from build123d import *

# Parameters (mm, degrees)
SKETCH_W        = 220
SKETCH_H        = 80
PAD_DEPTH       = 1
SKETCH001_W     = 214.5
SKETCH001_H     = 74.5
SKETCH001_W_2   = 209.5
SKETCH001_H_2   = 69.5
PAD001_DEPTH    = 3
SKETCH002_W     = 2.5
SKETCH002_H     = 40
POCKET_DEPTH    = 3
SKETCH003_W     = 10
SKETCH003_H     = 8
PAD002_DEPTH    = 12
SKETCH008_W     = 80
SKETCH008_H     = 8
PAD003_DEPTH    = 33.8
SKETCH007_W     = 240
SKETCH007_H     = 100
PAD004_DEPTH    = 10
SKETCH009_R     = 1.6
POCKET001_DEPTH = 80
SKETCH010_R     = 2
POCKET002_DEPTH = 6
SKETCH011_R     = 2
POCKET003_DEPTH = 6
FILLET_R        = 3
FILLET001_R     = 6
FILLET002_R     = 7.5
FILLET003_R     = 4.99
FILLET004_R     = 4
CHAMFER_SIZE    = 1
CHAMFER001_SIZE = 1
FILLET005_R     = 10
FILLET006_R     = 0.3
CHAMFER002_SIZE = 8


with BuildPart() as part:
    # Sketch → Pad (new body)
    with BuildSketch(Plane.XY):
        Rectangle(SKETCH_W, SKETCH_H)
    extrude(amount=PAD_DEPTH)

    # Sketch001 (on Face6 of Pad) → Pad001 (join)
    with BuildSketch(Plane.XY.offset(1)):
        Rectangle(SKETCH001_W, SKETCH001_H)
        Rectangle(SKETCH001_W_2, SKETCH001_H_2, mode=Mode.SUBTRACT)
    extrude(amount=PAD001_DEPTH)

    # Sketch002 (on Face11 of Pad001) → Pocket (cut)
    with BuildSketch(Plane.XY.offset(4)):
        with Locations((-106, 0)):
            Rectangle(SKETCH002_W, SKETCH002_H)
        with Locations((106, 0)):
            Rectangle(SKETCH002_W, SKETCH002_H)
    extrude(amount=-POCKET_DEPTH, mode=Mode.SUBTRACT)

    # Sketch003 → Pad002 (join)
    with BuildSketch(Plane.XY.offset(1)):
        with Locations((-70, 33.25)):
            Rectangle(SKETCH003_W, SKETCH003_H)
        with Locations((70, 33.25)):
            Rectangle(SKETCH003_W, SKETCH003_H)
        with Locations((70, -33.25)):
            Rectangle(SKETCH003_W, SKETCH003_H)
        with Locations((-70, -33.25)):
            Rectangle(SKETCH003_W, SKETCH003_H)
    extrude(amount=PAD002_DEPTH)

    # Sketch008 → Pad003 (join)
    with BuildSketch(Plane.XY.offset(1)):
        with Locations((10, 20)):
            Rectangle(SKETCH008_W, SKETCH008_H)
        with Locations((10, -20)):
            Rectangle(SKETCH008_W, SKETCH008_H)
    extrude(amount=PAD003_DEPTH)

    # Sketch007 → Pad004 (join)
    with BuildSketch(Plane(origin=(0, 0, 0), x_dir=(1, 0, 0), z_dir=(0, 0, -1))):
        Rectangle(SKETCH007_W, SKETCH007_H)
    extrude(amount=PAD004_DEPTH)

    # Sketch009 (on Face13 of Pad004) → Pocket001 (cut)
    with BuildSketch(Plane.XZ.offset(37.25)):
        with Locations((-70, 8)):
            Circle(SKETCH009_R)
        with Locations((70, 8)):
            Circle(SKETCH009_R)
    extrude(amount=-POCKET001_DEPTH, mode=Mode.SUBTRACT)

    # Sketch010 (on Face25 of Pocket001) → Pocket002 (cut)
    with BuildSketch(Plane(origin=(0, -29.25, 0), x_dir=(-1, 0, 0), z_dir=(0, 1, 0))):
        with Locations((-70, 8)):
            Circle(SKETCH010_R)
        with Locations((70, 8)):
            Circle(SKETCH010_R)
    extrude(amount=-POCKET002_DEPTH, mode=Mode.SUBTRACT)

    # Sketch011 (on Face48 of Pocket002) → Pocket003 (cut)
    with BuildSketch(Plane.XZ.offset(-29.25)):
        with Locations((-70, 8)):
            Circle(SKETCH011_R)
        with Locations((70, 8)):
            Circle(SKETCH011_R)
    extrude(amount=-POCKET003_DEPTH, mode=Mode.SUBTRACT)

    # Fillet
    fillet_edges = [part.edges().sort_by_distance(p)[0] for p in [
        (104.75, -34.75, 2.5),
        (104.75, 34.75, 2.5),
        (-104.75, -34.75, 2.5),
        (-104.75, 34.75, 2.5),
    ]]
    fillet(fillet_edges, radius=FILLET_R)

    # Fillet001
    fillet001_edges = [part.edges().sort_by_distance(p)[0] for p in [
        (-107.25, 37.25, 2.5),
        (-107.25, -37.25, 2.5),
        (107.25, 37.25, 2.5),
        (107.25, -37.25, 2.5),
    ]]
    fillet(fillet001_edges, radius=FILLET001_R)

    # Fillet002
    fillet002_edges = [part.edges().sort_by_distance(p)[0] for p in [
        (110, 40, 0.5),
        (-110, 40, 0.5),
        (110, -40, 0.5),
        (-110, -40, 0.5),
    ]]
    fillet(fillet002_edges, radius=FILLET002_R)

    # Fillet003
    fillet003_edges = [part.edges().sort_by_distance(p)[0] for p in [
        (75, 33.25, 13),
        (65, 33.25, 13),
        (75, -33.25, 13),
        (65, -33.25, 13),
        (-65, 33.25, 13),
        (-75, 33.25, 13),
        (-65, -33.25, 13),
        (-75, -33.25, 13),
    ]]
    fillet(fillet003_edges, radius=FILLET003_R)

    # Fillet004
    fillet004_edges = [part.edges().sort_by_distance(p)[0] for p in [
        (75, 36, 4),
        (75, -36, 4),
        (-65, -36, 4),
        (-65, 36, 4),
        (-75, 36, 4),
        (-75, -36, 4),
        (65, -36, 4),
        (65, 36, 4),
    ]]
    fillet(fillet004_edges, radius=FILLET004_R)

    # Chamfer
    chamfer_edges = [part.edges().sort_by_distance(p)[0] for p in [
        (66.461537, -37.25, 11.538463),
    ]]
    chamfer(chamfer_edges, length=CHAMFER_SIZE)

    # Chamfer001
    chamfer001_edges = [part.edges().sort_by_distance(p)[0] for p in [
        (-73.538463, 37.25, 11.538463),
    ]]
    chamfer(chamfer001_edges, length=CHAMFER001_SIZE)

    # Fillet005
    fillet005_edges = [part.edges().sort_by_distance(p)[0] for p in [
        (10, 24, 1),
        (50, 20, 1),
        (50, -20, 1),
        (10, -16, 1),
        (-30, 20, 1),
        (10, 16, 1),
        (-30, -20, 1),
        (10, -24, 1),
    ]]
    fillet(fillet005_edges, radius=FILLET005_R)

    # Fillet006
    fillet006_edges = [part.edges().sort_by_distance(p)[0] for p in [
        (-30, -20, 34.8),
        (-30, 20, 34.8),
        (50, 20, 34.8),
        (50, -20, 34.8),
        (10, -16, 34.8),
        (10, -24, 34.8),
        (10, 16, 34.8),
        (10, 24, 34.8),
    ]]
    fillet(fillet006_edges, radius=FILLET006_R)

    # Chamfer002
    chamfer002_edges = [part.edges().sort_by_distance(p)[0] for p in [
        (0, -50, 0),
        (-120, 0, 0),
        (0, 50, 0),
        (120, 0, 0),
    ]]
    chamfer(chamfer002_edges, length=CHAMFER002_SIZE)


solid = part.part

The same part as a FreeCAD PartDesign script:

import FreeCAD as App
import Part
import Sketcher
from FreeCAD import Vector


def edges_at(feature, points):
    """Names of the edges that pass closest to the given points."""
    edges = feature.Shape.Edges
    near = lambda p: min(range(len(edges)), key=lambda i: edges[i].distToShape(Part.Vertex(*p))[0])
    return sorted({f"Edge{near(p) + 1}" for p in points})


def add_polygon(sketch, points):
    """Adds a closed chain of lines whose ends are joined by coincident constraints."""
    first, n = sketch.GeometryCount, len(points)
    for a, b in zip(points, points[1:] + points[:1]):
        sketch.addGeometry(Part.LineSegment(App.Vector(*a, 0), App.Vector(*b, 0)), False)
    for i in range(n):
        sketch.addConstraint(Sketcher.Constraint("Coincident", first + i, 2, first + (i + 1) % n, 1))

doc = App.newDocument("Part")
body = doc.addObject("PartDesign::Body", "Body")

# Sketch on XY plane
sketch1 = body.newObject("Sketcher::SketchObject", "Sketch")
sketch1.AttachmentSupport = (doc.getObject("XY_Plane"), [""])
sketch1.MapMode = "FlatFace"
add_polygon(sketch1, [(-110, 40), (-110, -40), (110, -40), (110, 40)])  # lines 0-3
sketch1.addConstraint([
    Sketcher.Constraint("Vertical", 0),
    Sketcher.Constraint("Horizontal", 1),
    Sketcher.Constraint("Vertical", 2),
    Sketcher.Constraint("Horizontal", 3),
    Sketcher.Constraint("Symmetric", 0, 2, 2, 2, -1, 1),
    Sketcher.Constraint("DistanceX", 1, 1, 1, 2, 220.0),
    Sketcher.Constraint("DistanceY", 0, 2, 0, 1, 80.0),
])
pad1 = body.newObject("PartDesign::Pad", "Pad")
pad1.Profile = sketch1
pad1.Length = 1

# Sketch on XY plane
sketch2 = body.newObject("Sketcher::SketchObject", "Sketch001")
sketch2.AttachmentSupport = (doc.getObject("XY_Plane"), [""])
sketch2.MapMode = "FlatFace"
sketch2.AttachmentOffset = App.Placement(Vector(0, 0, 1), App.Rotation())
add_polygon(sketch2, [(-107, 37), (-107, -37), (107, -37), (107, 37)])  # lines 0-3
add_polygon(sketch2, [(105, -35), (-105, -35), (-105, 35), (105, 35)])  # lines 4-7
sketch2.addConstraint([
    Sketcher.Constraint("Vertical", 0),
    Sketcher.Constraint("Horizontal", 1),
    Sketcher.Constraint("Vertical", 2),
    Sketcher.Constraint("Horizontal", 3),
    Sketcher.Constraint("Horizontal", 4),
    Sketcher.Constraint("Vertical", 5),
    Sketcher.Constraint("Horizontal", 6),
    Sketcher.Constraint("Vertical", 7),
    Sketcher.Constraint("Symmetric", 0, 2, 2, 2, -1, 1),
    Sketcher.Constraint("Symmetric", 4, 2, 6, 2, -1, 1),
    Sketcher.Constraint("DistanceX", 1, 1, 1, 2, 214.5),
    Sketcher.Constraint("DistanceX", 4, 2, 4, 1, 209.5),
    Sketcher.Constraint("DistanceY", 0, 2, 0, 1, 74.5),
    Sketcher.Constraint("DistanceY", 5, 1, 5, 2, 69.5),
])
pad2 = body.newObject("PartDesign::Pad", "Pad001")
pad2.Profile = sketch2
pad2.Length = 3

# Sketch on XY plane
sketch3 = body.newObject("Sketcher::SketchObject", "Sketch002")
sketch3.AttachmentSupport = (doc.getObject("XY_Plane"), [""])
sketch3.MapMode = "FlatFace"
sketch3.AttachmentOffset = App.Placement(Vector(0, 0, 4), App.Rotation())
add_polygon(sketch3, [(-107.2, 20), (-107.2, -20), (-104.8, -20), (-104.8, 20)])  # lines 0-3
add_polygon(sketch3, [(104.8, 20), (104.8, -20), (107.2, -20), (107.2, 20)])  # lines 4-7
sketch3.addConstraint([
    Sketcher.Constraint("Vertical", 0),
    Sketcher.Constraint("Horizontal", 1),
    Sketcher.Constraint("Vertical", 2),
    Sketcher.Constraint("Horizontal", 3),
    Sketcher.Constraint("Vertical", 4),
    Sketcher.Constraint("Horizontal", 5),
    Sketcher.Constraint("Vertical", 6),
    Sketcher.Constraint("Horizontal", 7),
    Sketcher.Constraint("Symmetric", 2, 2, 4, 2, -1, 1),
    Sketcher.Constraint("Symmetric", 0, 2, 6, 2, -1, 1),
    Sketcher.Constraint("Horizontal", 1, 2, 4, 2),
    Sketcher.Constraint("DistanceY", 0, 2, 0, 1, 40.0),
    Sketcher.Constraint("DistanceX", 1, 1, 1, 2, 2.5),
    Sketcher.Constraint("DistanceX", 0, 2, 4, 2, 212.0),
])
pocket1 = body.newObject("PartDesign::Pocket", "Pocket")
pocket1.Profile = sketch3
pocket1.Length = 3

# Sketch on XY plane
sketch4 = body.newObject("Sketcher::SketchObject", "Sketch003")
sketch4.AttachmentSupport = (doc.getObject("XY_Plane"), [""])
sketch4.MapMode = "FlatFace"
sketch4.AttachmentOffset = App.Placement(Vector(0, 0, 1), App.Rotation())
add_polygon(sketch4, [(-75, 37), (-75, 29), (-65, 29), (-65, 37)])  # lines 0-3
add_polygon(sketch4, [(65, 37), (65, 29), (75, 29), (75, 37)])  # lines 4-7
add_polygon(sketch4, [(65, -29), (65, -37), (75, -37), (75, -29)])  # lines 8-11
add_polygon(sketch4, [(-75, -29), (-75, -37), (-65, -37), (-65, -29)])  # lines 12-15
sketch4.addConstraint([
    Sketcher.Constraint("Vertical", 0),
    Sketcher.Constraint("Horizontal", 1),
    Sketcher.Constraint("Vertical", 2),
    Sketcher.Constraint("Horizontal", 3),
    Sketcher.Constraint("Vertical", 4),
    Sketcher.Constraint("Horizontal", 5),
    Sketcher.Constraint("Vertical", 6),
    Sketcher.Constraint("Horizontal", 7),
    Sketcher.Constraint("Vertical", 8),
    Sketcher.Constraint("Horizontal", 9),
    Sketcher.Constraint("Vertical", 10),
    Sketcher.Constraint("Horizontal", 11),
    Sketcher.Constraint("Vertical", 12),
    Sketcher.Constraint("Horizontal", 13),
    Sketcher.Constraint("Vertical", 14),
    Sketcher.Constraint("Horizontal", 15),
    Sketcher.Constraint("Symmetric", 2, 2, 8, 2, -1, 1),
    Sketcher.Constraint("Symmetric", 0, 2, 10, 2, -1, 1),
    Sketcher.Constraint("Symmetric", 6, 2, 12, 2, -1, 1),
    Sketcher.Constraint("Symmetric", 4, 2, 14, 2, -1, 1),
    Sketcher.Constraint("Symmetric", 1, 2, 4, 2, -2),
    Sketcher.Constraint("Symmetric", 3, 2, 6, 2, -2),
    Sketcher.Constraint("DistanceX", 1, 1, 1, 2, 10.0),
    Sketcher.Constraint("DistanceY", 0, 2, 0, 1, 8.0),
    Sketcher.Constraint("DistanceX", 0, 2, -1, 1, 75.0),
    Sketcher.Constraint("DistanceY", 8, 2, 4, 2, 66.5),
])
pad3 = body.newObject("PartDesign::Pad", "Pad002")
pad3.Profile = sketch4
pad3.Length = 12

# Sketch on XY plane
sketch5 = body.newObject("Sketcher::SketchObject", "Sketch004")
sketch5.AttachmentSupport = (doc.getObject("XY_Plane"), [""])
sketch5.MapMode = "FlatFace"
sketch5.AttachmentOffset = App.Placement(Vector(0, 0, 1), App.Rotation())
add_polygon(sketch5, [(-30, 24), (-30, 16), (50, 16), (50, 24)])  # lines 0-3
add_polygon(sketch5, [(-30, -16), (-30, -24), (50, -24), (50, -16)])  # lines 4-7
sketch5.addConstraint([
    Sketcher.Constraint("Vertical", 0),
    Sketcher.Constraint("Horizontal", 1),
    Sketcher.Constraint("Vertical", 2),
    Sketcher.Constraint("Horizontal", 3),
    Sketcher.Constraint("Vertical", 4),
    Sketcher.Constraint("Horizontal", 5),
    Sketcher.Constraint("Vertical", 6),
    Sketcher.Constraint("Horizontal", 7),
    Sketcher.Constraint("Symmetric", 3, 2, 4, 2, -1),
    Sketcher.Constraint("Symmetric", 1, 2, 6, 2, -1),
    Sketcher.Constraint("DistanceX", 1, 1, 1, 2, 80.0),
    Sketcher.Constraint("DistanceY", 0, 2, 0, 1, 8.0),
    Sketcher.Constraint("DistanceX", 0, 2, -1, 1, 30.0),
    Sketcher.Constraint("DistanceY", -1, 1, 0, 2, 16.0),
])
pad4 = body.newObject("PartDesign::Pad", "Pad003")
pad4.Profile = sketch5
pad4.Length = 33.8

# Sketch on XY plane
sketch6 = body.newObject("Sketcher::SketchObject", "Sketch005")
sketch6.AttachmentSupport = (doc.getObject("XY_Plane"), [""])
sketch6.MapMode = "FlatFace"
add_polygon(sketch6, [(-120, -50), (-120, 50), (120, 50), (120, -50)])  # lines 0-3
sketch6.addConstraint([
    Sketcher.Constraint("Vertical", 0),
    Sketcher.Constraint("Horizontal", 1),
    Sketcher.Constraint("Vertical", 2),
    Sketcher.Constraint("Horizontal", 3),
    Sketcher.Constraint("Symmetric", 0, 2, 2, 2, -1, 1),
    Sketcher.Constraint("DistanceX", 1, 1, 1, 2, 240.0),
    Sketcher.Constraint("DistanceY", 0, 1, 0, 2, 100.0),
])
pad5 = body.newObject("PartDesign::Pad", "Pad004")
pad5.Profile = sketch6
pad5.Length = 10
pad5.Reversed = True

# Sketch on XZ plane
sketch7 = body.newObject("Sketcher::SketchObject", "Sketch006")
sketch7.AttachmentSupport = (doc.getObject("XZ_Plane"), [""])
sketch7.MapMode = "FlatFace"
sketch7.AttachmentOffset = App.Placement(Vector(0, 0, 37.25), App.Rotation())
sketch7.addGeometry([
    Part.Circle(Vector(-70, 8, 0), Vector(0, 0, 1), 1.6),
    Part.Circle(Vector(70, 8, 0), Vector(0, 0, 1), 1.6),
], False)
sketch7.addConstraint([
    Sketcher.Constraint("Equal", 0, 1),
    Sketcher.Constraint("Symmetric", 0, 3, 1, 3, -2),
    Sketcher.Constraint("Diameter", 0, 3.2),
    Sketcher.Constraint("DistanceX", 0, 3, -1, 1, 70.0),
    Sketcher.Constraint("DistanceY", -1, 1, 0, 3, 8.0),
])
pocket2 = body.newObject("PartDesign::Pocket", "Pocket001")
pocket2.Profile = sketch7
pocket2.Length = 80

# Sketch on XZ plane
sketch8 = body.newObject("Sketcher::SketchObject", "Sketch007")
sketch8.AttachmentSupport = (doc.getObject("XZ_Plane"), [""])
sketch8.MapMode = "FlatFace"
sketch8.AttachmentOffset = App.Placement(Vector(0, 0, 29.25), App.Rotation())
sketch8.addGeometry([
    Part.Circle(Vector(70, 8, 0), Vector(0, 0, 1), 2),
    Part.Circle(Vector(-70, 8, 0), Vector(0, 0, 1), 2),
], False)
sketch8.addConstraint([
    Sketcher.Constraint("Equal", 0, 1),
    Sketcher.Constraint("Symmetric", 0, 3, 1, 3, -2),
    Sketcher.Constraint("Diameter", 0, 4.0),
    Sketcher.Constraint("DistanceX", -1, 1, 0, 3, 70.0),
    Sketcher.Constraint("DistanceY", -1, 1, 0, 3, 8.0),
])
pocket3 = body.newObject("PartDesign::Pocket", "Pocket002")
pocket3.Profile = sketch8
pocket3.Length = 6
pocket3.Reversed = True

# Sketch on XZ plane
sketch9 = body.newObject("Sketcher::SketchObject", "Sketch008")
sketch9.AttachmentSupport = (doc.getObject("XZ_Plane"), [""])
sketch9.MapMode = "FlatFace"
sketch9.AttachmentOffset = App.Placement(Vector(0, 0, -29.25), App.Rotation())
sketch9.addGeometry([
    Part.Circle(Vector(-70, 8, 0), Vector(0, 0, 1), 2),
    Part.Circle(Vector(70, 8, 0), Vector(0, 0, 1), 2),
], False)
sketch9.addConstraint([
    Sketcher.Constraint("Equal", 0, 1),
    Sketcher.Constraint("Symmetric", 0, 3, 1, 3, -2),
    Sketcher.Constraint("Diameter", 0, 4.0),
    Sketcher.Constraint("DistanceX", 0, 3, -1, 1, 70.0),
    Sketcher.Constraint("DistanceY", -1, 1, 0, 3, 8.0),
])
pocket4 = body.newObject("PartDesign::Pocket", "Pocket003")
pocket4.Profile = sketch9
pocket4.Length = 6
doc.recompute()

fillet = body.newObject("PartDesign::Fillet", "Fillet")
fillet.Base = (pocket4, edges_at(pocket4, [
    (104.75, -34.75, 2.5),
    (104.75, 34.75, 2.5),
    (-104.75, -34.75, 2.5),
    (-104.75, 34.75, 2.5),
]))
fillet.Radius = 3
doc.recompute()

fillet2 = body.newObject("PartDesign::Fillet", "Fillet001")
fillet2.Base = (fillet, edges_at(fillet, [
    (-107.25, 37.25, 2.5),
    (-107.25, -37.25, 2.5),
    (107.25, 37.25, 2.5),
    (107.25, -37.25, 2.5),
]))
fillet2.Radius = 6
doc.recompute()

fillet3 = body.newObject("PartDesign::Fillet", "Fillet002")
fillet3.Base = (fillet2, edges_at(fillet2, [
    (110, 40, 0.5),
    (-110, 40, 0.5),
    (110, -40, 0.5),
    (-110, -40, 0.5),
]))
fillet3.Radius = 7.5
doc.recompute()

fillet4 = body.newObject("PartDesign::Fillet", "Fillet003")
fillet4.Base = (fillet3, edges_at(fillet3, [
    (75, 33.25, 13),
    (65, 33.25, 13),
    (75, -33.25, 13),
    (65, -33.25, 13),
    (-65, 33.25, 13),
    (-75, 33.25, 13),
    (-65, -33.25, 13),
    (-75, -33.25, 13),
]))
fillet4.Radius = 4.99
doc.recompute()

fillet5 = body.newObject("PartDesign::Fillet", "Fillet004")
fillet5.Base = (fillet4, edges_at(fillet4, [
    (75, 36, 4),
    (75, -36, 4),
    (-65, -36, 4),
    (-65, 36, 4),
    (-75, 36, 4),
    (-75, -36, 4),
    (65, -36, 4),
    (65, 36, 4),
]))
fillet5.Radius = 4
doc.recompute()

chamfer = body.newObject("PartDesign::Chamfer", "Chamfer")
chamfer.Base = (fillet5, edges_at(fillet5, [(66.462, -37.25, 11.538)]))
chamfer.Size = 1
doc.recompute()

chamfer2 = body.newObject("PartDesign::Chamfer", "Chamfer001")
chamfer2.Base = (chamfer, edges_at(chamfer, [(-73.538, 37.25, 11.538)]))
chamfer2.Size = 1
doc.recompute()

fillet6 = body.newObject("PartDesign::Fillet", "Fillet005")
fillet6.Base = (chamfer2, edges_at(chamfer2, [
    (10, 24, 1),
    (50, 20, 1),
    (50, -20, 1),
    (10, -16, 1),
    (-30, 20, 1),
    (10, 16, 1),
    (-30, -20, 1),
    (10, -24, 1),
]))
fillet6.Radius = 10
doc.recompute()

fillet7 = body.newObject("PartDesign::Fillet", "Fillet006")
fillet7.Base = (fillet6, edges_at(fillet6, [
    (-30, -20, 34.8),
    (-30, 20, 34.8),
    (50, 20, 34.8),
    (50, -20, 34.8),
    (10, -16, 34.8),
    (10, -24, 34.8),
    (10, 16, 34.8),
    (10, 24, 34.8),
]))
fillet7.Radius = 0.3
doc.recompute()

chamfer3 = body.newObject("PartDesign::Chamfer", "Chamfer002")
chamfer3.Base = (fillet7, edges_at(fillet7, [
    (0, -50, 0),
    (-120, 0, 0),
    (0, 50, 0),
    (120, 0, 0),
]))
chamfer3.Size = 8

doc.recompute()
